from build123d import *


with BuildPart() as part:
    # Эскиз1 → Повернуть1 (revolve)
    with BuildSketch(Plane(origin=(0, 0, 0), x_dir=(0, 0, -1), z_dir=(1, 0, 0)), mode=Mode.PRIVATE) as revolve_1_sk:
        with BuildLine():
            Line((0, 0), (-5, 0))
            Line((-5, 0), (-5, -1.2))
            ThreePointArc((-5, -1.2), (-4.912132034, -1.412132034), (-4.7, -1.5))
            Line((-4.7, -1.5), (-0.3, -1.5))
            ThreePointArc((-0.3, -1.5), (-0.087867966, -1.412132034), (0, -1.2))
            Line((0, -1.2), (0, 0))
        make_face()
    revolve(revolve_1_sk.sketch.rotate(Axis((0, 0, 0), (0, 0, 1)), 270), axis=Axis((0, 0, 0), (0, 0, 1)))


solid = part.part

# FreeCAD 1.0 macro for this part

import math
import FreeCAD as App
import Part
import Sketcher
from FreeCAD import Vector

doc = App.newDocument("Part")
body = doc.addObject("PartDesign::Body", "Body")

# Sketch on YZ plane
sketch1 = body.newObject("Sketcher::SketchObject", "Sketch")
sketch1.AttachmentSupport = (doc.getObject("YZ_Plane"), [""])
sketch1.MapMode = "FlatFace"
sketch1.addGeometry([
    Part.LineSegment(Vector(0, 0, 0), Vector(0, 5, 0)),  # 0
    Part.LineSegment(Vector(0, 5, 0), Vector(-1.2, 5, 0)),  # 1
    Part.ArcOfCircle(Part.Circle(Vector(-1.2, 4.7, 0), Vector(0, 0, 1), 0.3), math.radians(90), math.radians(180)),  # 2
    Part.LineSegment(Vector(-1.5, 4.7, 0), Vector(-1.5, 0.3, 0)),  # 3
    Part.ArcOfCircle(Part.Circle(Vector(-1.2, 0.3, 0), Vector(0, 0, 1), 0.3), math.radians(-180), math.radians(-90)),  # 4
    Part.LineSegment(Vector(-1.2, 0, 0), Vector(0, 0, 0)),  # 5
], False)
sketch1.addConstraint([
    Sketcher.Constraint("Coincident", 0, 2, 1, 1),
    Sketcher.Constraint("Tangent", 1, 2, 2, 1),
    Sketcher.Constraint("Tangent", 2, 2, 3, 1),
    Sketcher.Constraint("Tangent", 3, 2, 4, 1),
    Sketcher.Constraint("Tangent", 4, 2, 5, 1),
    Sketcher.Constraint("Coincident", 5, 2, 0, 1),
    Sketcher.Constraint("Vertical", 0),
    Sketcher.Constraint("Horizontal", 1),
    Sketcher.Constraint("Vertical", 3),
    Sketcher.Constraint("Horizontal", 5),
    Sketcher.Constraint("Coincident", 5, 2, -1, 1),
    Sketcher.Constraint("Equal", 2, 4),
    Sketcher.Constraint("Radius", 2, 0.3),
    Sketcher.Constraint("DistanceY", 0, 1, 0, 2, 5.0),
    Sketcher.Constraint("DistanceX", 1, 2, 1, 1, 1.2),
])
revolution = body.newObject("PartDesign::Revolution", "Revolution")
revolution.Profile = sketch1
revolution.ReferenceAxis = (sketch1, ["V_Axis"])
revolution.Angle = 360

doc.recompute()
